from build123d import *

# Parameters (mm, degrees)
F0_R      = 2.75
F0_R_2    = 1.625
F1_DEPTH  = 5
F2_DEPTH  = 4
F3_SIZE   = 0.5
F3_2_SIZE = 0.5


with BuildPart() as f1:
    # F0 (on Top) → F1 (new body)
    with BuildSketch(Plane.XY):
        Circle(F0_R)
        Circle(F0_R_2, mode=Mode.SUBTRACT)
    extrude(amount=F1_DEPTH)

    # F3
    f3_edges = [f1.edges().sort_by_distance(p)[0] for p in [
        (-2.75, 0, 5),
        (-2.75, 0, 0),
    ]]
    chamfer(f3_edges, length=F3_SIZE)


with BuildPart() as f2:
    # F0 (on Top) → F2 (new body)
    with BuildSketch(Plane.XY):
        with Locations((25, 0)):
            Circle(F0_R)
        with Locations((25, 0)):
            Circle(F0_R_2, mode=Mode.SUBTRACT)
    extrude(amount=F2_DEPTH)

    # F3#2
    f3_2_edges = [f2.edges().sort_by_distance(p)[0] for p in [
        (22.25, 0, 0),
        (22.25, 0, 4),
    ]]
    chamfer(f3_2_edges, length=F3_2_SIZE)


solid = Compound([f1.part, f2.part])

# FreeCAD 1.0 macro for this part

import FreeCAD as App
import Part
import Sketcher

V = App.Vector


def edges_at(feature, points):
    """Names of the edges that pass closest to the given points."""
    edges = feature.Shape.Edges
    near = lambda p: min(range(len(edges)), key=lambda i: edges[i].distToShape(Part.Vertex(*p))[0])
    return sorted({f"Edge{near(p) + 1}" for p in points})

doc = App.newDocument("Part")
body = doc.addObject("PartDesign::Body", "Body")

# Sketch on XY plane
sketch1 = doc.addObject("Sketcher::SketchObject", "Sketch")
body.addObject(sketch1)
sketch1.AttachmentSupport = (doc.XY_Plane, [""])
sketch1.MapMode = "FlatFace"
sketch1.addGeometry([
    Part.Circle(V(0, 0, 0), V(0, 0, 1), 2.8),
    Part.Circle(V(0, 0, 0), V(0, 0, 1), 1.6),
], False)
sketch1.addConstraint([
    Sketcher.Constraint("Coincident", 0, 3, -1, 1),
    Sketcher.Constraint("Coincident", 1, 3, -1, 1),
    Sketcher.Constraint("Diameter", 0, 5.5),
    Sketcher.Constraint("Diameter", 1, 3.25),
])
pad1 = doc.addObject("PartDesign::Pad", "Pad")
body.addObject(pad1)
pad1.Profile = sketch1
pad1.Length = 5
doc.recompute()

chamfer = doc.addObject("PartDesign::Chamfer", "Chamfer")
body.addObject(chamfer)
chamfer.Base = (pad1, edges_at(pad1, [(-2.75, 0, 5), (-2.75, 0, 0)]))
chamfer.Size = 0.5
body2 = doc.addObject("PartDesign::Body", "Body001")

# Sketch on XY plane
sketch2 = doc.addObject("Sketcher::SketchObject", "Sketch001")
body2.addObject(sketch2)
sketch2.AttachmentSupport = (doc.getObject("XY_Plane001"), [""])
sketch2.MapMode = "FlatFace"
sketch2.addGeometry([
    Part.Circle(V(25, 0, 0), V(0, 0, 1), 2.8),
    Part.Circle(V(25, 0, 0), V(0, 0, 1), 1.6),
], False)
sketch2.addConstraint([
    Sketcher.Constraint("Coincident", 1, 3, 0, 3),
    Sketcher.Constraint("PointOnObject", 0, 3, -1),
    Sketcher.Constraint("Diameter", 0, 5.5),
    Sketcher.Constraint("Diameter", 1, 3.25),
    Sketcher.Constraint("DistanceX", -1, 1, 0, 3, 25.0),
])
pad2 = doc.addObject("PartDesign::Pad", "Pad001")
body2.addObject(pad2)
pad2.Profile = sketch2
pad2.Length = 4
doc.recompute()

chamfer2 = doc.addObject("PartDesign::Chamfer", "Chamfer001")
body2.addObject(chamfer2)
chamfer2.Base = (pad2, edges_at(pad2, [(22.25, 0, 0), (22.25, 0, 4)]))
chamfer2.Size = 0.5

doc.recompute()
